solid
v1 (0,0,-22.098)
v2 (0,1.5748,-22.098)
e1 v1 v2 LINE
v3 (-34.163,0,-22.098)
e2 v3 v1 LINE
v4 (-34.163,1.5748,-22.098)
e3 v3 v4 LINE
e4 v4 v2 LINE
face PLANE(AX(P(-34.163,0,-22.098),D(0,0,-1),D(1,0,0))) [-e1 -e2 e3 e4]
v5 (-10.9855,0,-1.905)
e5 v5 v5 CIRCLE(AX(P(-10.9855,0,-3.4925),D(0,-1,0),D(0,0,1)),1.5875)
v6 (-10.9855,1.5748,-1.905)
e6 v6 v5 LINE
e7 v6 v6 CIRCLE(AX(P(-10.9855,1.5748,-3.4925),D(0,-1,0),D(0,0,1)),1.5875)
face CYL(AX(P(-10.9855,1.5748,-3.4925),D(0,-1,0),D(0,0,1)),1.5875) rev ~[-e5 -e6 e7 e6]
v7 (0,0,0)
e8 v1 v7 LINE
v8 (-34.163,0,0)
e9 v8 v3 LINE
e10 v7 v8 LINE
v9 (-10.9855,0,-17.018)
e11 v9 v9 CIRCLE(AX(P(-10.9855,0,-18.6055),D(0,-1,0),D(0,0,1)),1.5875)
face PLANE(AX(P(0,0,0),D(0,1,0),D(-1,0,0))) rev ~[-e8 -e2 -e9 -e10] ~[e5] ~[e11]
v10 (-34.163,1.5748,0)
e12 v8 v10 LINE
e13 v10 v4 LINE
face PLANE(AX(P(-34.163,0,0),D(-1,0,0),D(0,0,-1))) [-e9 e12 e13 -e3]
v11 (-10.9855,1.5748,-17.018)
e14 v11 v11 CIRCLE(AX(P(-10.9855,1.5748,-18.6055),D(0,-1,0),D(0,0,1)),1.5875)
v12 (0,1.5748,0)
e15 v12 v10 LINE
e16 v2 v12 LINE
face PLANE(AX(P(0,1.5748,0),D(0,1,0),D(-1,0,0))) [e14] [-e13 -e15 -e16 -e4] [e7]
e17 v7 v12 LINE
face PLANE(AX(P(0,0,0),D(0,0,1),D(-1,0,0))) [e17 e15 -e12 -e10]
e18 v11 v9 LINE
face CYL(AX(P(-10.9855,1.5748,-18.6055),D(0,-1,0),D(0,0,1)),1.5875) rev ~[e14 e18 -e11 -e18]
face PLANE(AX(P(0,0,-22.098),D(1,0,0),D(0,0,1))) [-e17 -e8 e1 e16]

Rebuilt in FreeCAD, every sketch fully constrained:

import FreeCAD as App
import Part
import Sketcher

V = App.Vector
Q = App.Units.Quantity

doc = App.newDocument("Part")
body = doc.addObject("PartDesign::Body", "Body")

sketch1 = body.newObject("Sketcher::SketchObject", "Sketch")
sketch1.AttachmentSupport = (doc.getObject("XZ_Plane"), [""])
sketch1.MapMode = "FlatFace"
sketch1.addGeometry([
    Part.LineSegment(V(-34, 0, 0), V(0, 0, 0)),
    Part.LineSegment(V(0, 0, 0), V(0, -22, 0)),
    Part.LineSegment(V(0, -22, 0), V(-34, -22, 0)),
    Part.LineSegment(V(-34, -22, 0), V(-34, 0, 0)),
], False)
sketch1.addConstraint([
    Sketcher.Constraint("Coincident", 0, 2, 1, 1),
    Sketcher.Constraint("Coincident", 1, 2, 2, 1),
    Sketcher.Constraint("Coincident", 2, 2, 3, 1),
    Sketcher.Constraint("Coincident", 3, 2, 0, 1),
    Sketcher.Constraint("Horizontal", 0),
    Sketcher.Constraint("Vertical", 1),
    Sketcher.Constraint("Horizontal", 2),
    Sketcher.Constraint("Vertical", 3),
    Sketcher.Constraint("Coincident", 0, 2, -1, 1),
    Sketcher.Constraint("DistanceY", 1, 2, 1, 1, Q("0.87 in")),
    Sketcher.Constraint("DistanceX", 0, 1, 0, 2, Q("1.345 in")),
])
pad1 = body.newObject("PartDesign::Pad", "Pad")
pad1.Profile = sketch1
pad1.Length = Q("0.062 in")
pad1.Reversed = True

sketch2 = body.newObject("Sketcher::SketchObject", "Sketch001")
sketch2.AttachmentSupport = (doc.getObject("XZ_Plane"), [""])
sketch2.MapMode = "FlatFace"
sketch2.AttachmentOffset = App.Placement(V(0, 0, -0.062 * 25.4), App.Rotation())
sketch2.addGeometry(Part.Circle(V(-11, -3.5, 0), V(0, 0, 1), 1.6), False)
sketch2.addConstraint([
    Sketcher.Constraint("Diameter", 0, Q("0.125 in")),
    Sketcher.Constraint("DistanceX", 0, 3, -1, 1, Q("0.4325 in")),
    Sketcher.Constraint("DistanceY", 0, 3, -1, 1, Q("0.1375 in")),
])
doc.recompute()
hole = body.newObject("PartDesign::Hole", "Hole")
hole.Profile = sketch2
hole.ThreadType = "None"
hole.Diameter = Q("0.125 in")
hole.DepthType = "Dimension"
hole.Depth = Q("1 in")
hole.DrillPoint = "Angled"
hole.DrillPointAngle = 118
hole.Reversed = True

sketch3 = body.newObject("Sketcher::SketchObject", "Sketch002")
sketch3.AttachmentSupport = (doc.getObject("XZ_Plane"), [""])
sketch3.MapMode = "FlatFace"
sketch3.AttachmentOffset = App.Placement(V(0, 0, -0.062 * 25.4), App.Rotation())
sketch3.addGeometry(Part.Circle(V(-11, -18.6, 0), V(0, 0, 1), 1.6), False)
sketch3.addConstraint([
    Sketcher.Constraint("Diameter", 0, Q("0.125 in")),
    Sketcher.Constraint("DistanceX", 0, 3, -1, 1, Q("0.4325 in")),
    Sketcher.Constraint("DistanceY", 0, 3, -1, 1, Q("0.7325 in")),
])
doc.recompute()
hole2 = body.newObject("PartDesign::Hole", "Hole001")
hole2.Profile = sketch3
hole2.ThreadType = "None"
hole2.Diameter = Q("0.125 in")
hole2.DepthType = "Dimension"
hole2.Depth = Q("1 in")
hole2.DrillPoint = "Angled"
hole2.DrillPointAngle = 118
hole2.Reversed = True

doc.recompute()
